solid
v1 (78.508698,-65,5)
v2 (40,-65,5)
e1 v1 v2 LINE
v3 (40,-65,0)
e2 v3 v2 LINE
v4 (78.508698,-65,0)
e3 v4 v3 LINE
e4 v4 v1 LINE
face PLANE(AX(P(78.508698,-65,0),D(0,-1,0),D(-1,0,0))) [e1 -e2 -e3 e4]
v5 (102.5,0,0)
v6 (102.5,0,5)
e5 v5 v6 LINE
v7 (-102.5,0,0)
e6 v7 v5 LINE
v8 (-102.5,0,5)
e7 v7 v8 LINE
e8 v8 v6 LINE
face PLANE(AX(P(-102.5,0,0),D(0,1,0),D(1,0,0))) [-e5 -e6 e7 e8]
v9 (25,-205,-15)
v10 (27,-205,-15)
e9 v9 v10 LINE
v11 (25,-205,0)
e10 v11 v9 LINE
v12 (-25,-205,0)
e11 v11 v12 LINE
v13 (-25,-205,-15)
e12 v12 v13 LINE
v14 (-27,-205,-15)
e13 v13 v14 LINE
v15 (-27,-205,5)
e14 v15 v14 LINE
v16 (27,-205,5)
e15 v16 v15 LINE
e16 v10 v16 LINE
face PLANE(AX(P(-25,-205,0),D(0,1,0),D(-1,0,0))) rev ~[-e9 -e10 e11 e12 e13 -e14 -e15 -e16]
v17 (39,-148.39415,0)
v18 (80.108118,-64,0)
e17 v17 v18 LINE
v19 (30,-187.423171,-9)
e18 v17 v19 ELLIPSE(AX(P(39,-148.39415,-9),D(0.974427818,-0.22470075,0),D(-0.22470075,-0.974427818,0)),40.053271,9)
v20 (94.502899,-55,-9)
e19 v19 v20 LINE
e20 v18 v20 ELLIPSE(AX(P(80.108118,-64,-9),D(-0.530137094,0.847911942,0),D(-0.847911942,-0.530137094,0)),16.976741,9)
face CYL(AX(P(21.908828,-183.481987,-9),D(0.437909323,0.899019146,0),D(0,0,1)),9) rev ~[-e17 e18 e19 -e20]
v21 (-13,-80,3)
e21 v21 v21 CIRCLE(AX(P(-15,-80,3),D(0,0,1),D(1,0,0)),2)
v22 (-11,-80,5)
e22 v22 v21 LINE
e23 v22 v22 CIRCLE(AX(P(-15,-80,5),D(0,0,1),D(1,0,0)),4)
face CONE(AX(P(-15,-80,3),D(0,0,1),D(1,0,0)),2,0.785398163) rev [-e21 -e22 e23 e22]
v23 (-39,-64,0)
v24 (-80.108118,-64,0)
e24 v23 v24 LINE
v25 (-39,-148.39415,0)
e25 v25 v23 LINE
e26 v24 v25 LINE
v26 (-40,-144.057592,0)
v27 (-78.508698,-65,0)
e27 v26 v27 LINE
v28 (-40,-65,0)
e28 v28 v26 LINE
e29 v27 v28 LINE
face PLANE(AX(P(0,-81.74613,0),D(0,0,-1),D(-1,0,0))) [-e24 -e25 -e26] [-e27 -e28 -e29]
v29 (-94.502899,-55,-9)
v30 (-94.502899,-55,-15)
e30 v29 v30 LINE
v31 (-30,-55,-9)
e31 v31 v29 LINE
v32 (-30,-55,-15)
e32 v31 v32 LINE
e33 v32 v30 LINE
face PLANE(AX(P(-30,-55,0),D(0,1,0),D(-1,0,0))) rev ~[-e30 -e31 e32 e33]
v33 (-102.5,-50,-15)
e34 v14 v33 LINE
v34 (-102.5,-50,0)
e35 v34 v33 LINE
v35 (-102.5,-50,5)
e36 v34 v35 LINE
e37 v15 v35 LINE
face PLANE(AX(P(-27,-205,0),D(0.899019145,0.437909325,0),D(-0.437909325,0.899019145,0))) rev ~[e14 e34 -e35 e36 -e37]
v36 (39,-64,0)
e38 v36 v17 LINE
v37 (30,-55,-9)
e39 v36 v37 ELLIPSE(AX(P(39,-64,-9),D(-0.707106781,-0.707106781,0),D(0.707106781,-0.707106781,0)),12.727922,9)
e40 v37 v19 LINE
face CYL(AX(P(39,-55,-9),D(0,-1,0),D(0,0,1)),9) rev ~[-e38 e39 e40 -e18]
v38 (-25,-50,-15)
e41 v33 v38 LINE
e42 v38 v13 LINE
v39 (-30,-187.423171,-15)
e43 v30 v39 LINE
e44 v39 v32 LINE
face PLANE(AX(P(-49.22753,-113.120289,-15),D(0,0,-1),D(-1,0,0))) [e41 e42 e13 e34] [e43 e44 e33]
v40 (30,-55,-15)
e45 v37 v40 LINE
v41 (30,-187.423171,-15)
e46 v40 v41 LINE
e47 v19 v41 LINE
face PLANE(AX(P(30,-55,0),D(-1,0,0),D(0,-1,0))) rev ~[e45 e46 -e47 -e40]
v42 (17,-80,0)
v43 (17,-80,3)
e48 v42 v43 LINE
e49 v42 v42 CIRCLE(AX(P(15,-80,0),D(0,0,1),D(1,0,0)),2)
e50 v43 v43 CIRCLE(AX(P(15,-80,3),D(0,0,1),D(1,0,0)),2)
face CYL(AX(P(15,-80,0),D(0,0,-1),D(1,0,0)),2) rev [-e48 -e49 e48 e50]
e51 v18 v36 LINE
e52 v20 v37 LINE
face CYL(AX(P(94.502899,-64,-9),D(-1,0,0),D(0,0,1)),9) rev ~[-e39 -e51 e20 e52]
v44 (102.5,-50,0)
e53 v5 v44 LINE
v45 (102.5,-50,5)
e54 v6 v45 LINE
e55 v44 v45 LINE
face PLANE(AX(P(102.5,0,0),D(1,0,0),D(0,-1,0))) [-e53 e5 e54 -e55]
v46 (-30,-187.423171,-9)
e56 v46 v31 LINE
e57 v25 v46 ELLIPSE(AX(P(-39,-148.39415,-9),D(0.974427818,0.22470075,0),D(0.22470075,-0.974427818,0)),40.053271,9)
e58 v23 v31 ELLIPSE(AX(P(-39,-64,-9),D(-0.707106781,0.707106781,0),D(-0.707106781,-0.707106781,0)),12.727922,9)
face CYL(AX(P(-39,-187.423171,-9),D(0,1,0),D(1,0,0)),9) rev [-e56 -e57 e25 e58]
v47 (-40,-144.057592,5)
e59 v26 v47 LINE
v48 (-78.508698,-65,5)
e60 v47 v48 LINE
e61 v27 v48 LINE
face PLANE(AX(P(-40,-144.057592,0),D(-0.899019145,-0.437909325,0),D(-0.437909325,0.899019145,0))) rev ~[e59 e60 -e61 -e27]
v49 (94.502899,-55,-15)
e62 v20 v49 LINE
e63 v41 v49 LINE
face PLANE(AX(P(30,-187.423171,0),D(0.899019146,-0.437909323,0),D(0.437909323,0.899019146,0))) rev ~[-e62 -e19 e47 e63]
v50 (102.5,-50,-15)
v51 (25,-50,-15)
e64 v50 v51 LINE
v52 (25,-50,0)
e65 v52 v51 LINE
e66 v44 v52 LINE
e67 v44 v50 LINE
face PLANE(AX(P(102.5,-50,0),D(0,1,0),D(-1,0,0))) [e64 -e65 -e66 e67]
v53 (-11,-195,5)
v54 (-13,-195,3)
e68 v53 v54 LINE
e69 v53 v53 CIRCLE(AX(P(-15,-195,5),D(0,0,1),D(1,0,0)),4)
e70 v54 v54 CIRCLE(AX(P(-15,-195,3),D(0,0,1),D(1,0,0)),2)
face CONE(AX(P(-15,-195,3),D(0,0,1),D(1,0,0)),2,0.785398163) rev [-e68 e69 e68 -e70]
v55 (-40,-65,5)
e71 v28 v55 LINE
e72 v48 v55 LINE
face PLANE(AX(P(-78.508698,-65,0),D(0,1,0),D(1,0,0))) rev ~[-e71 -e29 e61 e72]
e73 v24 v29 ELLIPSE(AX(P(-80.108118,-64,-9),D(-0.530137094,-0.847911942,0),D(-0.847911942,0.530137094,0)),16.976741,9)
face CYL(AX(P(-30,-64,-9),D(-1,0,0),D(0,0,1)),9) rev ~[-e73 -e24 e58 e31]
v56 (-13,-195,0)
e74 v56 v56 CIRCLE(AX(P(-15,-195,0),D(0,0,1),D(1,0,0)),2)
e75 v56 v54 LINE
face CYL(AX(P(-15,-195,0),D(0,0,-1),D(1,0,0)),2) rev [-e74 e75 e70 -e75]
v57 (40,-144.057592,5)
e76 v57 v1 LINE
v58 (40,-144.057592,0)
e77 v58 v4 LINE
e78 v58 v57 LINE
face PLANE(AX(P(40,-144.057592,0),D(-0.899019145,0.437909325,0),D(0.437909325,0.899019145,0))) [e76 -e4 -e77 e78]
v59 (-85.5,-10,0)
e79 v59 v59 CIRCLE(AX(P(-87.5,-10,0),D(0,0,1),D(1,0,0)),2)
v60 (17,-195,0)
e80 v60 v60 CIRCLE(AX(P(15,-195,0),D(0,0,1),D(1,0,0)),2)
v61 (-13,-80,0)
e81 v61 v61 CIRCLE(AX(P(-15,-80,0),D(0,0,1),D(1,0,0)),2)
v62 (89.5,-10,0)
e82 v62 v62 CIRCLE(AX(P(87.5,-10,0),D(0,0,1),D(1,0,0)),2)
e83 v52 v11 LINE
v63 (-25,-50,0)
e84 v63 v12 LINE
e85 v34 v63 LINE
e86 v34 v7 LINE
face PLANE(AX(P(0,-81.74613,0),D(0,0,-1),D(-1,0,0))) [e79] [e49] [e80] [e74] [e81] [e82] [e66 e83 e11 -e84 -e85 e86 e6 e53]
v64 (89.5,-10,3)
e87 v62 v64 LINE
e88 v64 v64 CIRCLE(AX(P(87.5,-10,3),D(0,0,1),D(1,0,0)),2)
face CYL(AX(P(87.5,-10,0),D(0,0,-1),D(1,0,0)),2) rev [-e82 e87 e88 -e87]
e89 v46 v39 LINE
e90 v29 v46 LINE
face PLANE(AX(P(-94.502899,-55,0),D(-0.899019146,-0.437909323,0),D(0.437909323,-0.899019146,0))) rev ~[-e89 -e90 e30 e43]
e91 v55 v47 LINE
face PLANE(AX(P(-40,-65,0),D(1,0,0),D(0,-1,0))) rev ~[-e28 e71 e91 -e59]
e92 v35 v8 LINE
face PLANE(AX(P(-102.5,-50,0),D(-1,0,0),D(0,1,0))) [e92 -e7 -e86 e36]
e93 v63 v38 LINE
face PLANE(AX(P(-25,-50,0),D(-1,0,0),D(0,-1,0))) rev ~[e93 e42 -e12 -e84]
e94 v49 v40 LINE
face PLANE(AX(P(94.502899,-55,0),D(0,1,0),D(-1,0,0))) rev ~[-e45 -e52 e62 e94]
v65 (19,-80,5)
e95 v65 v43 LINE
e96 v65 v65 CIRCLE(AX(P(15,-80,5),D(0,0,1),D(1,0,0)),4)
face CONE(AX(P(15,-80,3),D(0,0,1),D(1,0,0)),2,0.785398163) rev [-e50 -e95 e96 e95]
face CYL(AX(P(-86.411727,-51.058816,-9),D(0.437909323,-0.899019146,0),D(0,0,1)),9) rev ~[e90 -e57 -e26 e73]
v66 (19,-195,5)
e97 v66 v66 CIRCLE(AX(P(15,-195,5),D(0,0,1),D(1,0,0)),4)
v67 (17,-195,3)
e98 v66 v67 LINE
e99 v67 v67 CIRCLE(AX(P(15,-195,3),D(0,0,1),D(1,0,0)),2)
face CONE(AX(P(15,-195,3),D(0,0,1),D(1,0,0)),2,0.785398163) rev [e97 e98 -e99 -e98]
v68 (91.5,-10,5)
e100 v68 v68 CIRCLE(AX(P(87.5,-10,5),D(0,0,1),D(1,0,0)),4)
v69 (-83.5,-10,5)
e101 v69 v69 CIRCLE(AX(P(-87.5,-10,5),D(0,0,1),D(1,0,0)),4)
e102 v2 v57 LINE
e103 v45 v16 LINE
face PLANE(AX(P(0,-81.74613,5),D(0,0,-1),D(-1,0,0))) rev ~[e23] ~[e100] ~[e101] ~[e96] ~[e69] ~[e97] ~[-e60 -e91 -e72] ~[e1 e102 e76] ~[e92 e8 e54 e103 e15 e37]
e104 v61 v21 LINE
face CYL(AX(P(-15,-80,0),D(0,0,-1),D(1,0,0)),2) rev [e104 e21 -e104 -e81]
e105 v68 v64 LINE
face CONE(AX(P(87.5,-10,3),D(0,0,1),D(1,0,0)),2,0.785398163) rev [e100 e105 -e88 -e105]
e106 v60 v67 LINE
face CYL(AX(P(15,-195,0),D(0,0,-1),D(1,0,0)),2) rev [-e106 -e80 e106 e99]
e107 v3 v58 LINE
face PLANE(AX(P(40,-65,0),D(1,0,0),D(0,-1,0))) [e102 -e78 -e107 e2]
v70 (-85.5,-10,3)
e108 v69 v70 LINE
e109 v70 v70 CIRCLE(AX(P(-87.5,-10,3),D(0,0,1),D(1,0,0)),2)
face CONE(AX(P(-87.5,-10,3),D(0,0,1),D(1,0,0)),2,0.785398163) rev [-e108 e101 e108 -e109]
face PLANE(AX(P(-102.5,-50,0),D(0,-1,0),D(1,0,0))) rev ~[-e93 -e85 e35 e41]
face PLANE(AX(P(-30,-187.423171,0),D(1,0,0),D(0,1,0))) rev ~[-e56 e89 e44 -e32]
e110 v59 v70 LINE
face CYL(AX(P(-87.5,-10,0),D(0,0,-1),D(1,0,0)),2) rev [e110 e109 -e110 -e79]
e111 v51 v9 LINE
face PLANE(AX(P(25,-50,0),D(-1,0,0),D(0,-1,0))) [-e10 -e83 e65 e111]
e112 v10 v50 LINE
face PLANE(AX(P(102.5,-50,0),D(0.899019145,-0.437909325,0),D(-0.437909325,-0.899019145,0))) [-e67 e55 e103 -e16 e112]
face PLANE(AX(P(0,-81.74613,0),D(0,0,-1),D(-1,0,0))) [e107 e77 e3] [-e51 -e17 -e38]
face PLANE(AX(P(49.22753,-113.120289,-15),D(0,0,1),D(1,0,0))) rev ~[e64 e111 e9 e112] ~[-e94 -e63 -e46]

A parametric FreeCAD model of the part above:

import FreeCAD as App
import Part
import Sketcher


def edges_at(feature, points):
    """Names of the edges that pass closest to the given points."""
    edges = feature.Shape.Edges
    near = lambda p: min(range(len(edges)), key=lambda i: edges[i].distToShape(Part.Vertex(*p))[0])
    return sorted({f"Edge{near(p) + 1}" for p in points})

doc = App.newDocument("Part")
body = doc.addObject("PartDesign::Body", "Body")

sketch1 = doc.addObject("Sketcher::SketchObject", "Sketch")
body.addObject(sketch1)
sketch1.AttachmentSupport = (doc.XY_Plane, [""])
sketch1.MapMode = "FlatFace"
sketch1.addGeometry(Part.LineSegment(App.Vector(102.5, 0, 0), App.Vector(-102.5, 0, 0)), False)
sketch1.addGeometry(Part.LineSegment(App.Vector(-102.5, 0, 0), App.Vector(-102.5, -50, 0)), False)
sketch1.addGeometry(Part.LineSegment(App.Vector(-102.5, -50, 0), App.Vector(-27, -205, 0)), False)
sketch1.addGeometry(Part.LineSegment(App.Vector(-27, -205, 0), App.Vector(27, -205, 0)), False)
sketch1.addGeometry(Part.LineSegment(App.Vector(27, -205, 0), App.Vector(102.5, -50, 0)), False)
sketch1.addGeometry(Part.LineSegment(App.Vector(102.5, -50, 0), App.Vector(102.5, 0, 0)), False)
sketch1.addGeometry(Part.Circle(App.Vector(15, -195, 0), App.Vector(0, 0, 1), 2), False)
sketch1.addGeometry(Part.LineSegment(App.Vector(78.508698, -65, 0), App.Vector(40, -144.057592, 0)), False)
sketch1.addGeometry(Part.LineSegment(App.Vector(40, -144.057592, 0), App.Vector(40, -65, 0)), False)
sketch1.addGeometry(Part.LineSegment(App.Vector(40, -65, 0), App.Vector(78.508698, -65, 0)), False)
sketch1.addGeometry(Part.Circle(App.Vector(-15, -195, 0), App.Vector(0, 0, 1), 2), False)
sketch1.addGeometry(Part.LineSegment(App.Vector(-78.508698, -65, 0), App.Vector(-40, -65, 0)), False)
sketch1.addGeometry(Part.LineSegment(App.Vector(-40, -65, 0), App.Vector(-40, -144.057592, 0)), False)
sketch1.addGeometry(Part.LineSegment(App.Vector(-40, -144.057592, 0), App.Vector(-78.508698, -65, 0)), False)
sketch1.addGeometry(Part.Circle(App.Vector(15, -80, 0), App.Vector(0, 0, 1), 2), False)
sketch1.addGeometry(Part.Circle(App.Vector(87.5, -10, 0), App.Vector(0, 0, 1), 2), False)
sketch1.addGeometry(Part.Circle(App.Vector(-15, -80, 0), App.Vector(0, 0, 1), 2), False)
sketch1.addGeometry(Part.Circle(App.Vector(-87.5, -10, 0), App.Vector(0, 0, 1), 2), False)
sketch1.addConstraint(Sketcher.Constraint("Coincident", 0, 2, 1, 1))
sketch1.addConstraint(Sketcher.Constraint("Coincident", 1, 2, 2, 1))
sketch1.addConstraint(Sketcher.Constraint("Coincident", 2, 2, 3, 1))
sketch1.addConstraint(Sketcher.Constraint("Coincident", 3, 2, 4, 1))
sketch1.addConstraint(Sketcher.Constraint("Coincident", 4, 2, 5, 1))
sketch1.addConstraint(Sketcher.Constraint("Coincident", 5, 2, 0, 1))
sketch1.addConstraint(Sketcher.Constraint("Coincident", 7, 2, 8, 1))
sketch1.addConstraint(Sketcher.Constraint("Coincident", 8, 2, 9, 1))
sketch1.addConstraint(Sketcher.Constraint("Coincident", 9, 2, 7, 1))
sketch1.addConstraint(Sketcher.Constraint("Coincident", 11, 2, 12, 1))
sketch1.addConstraint(Sketcher.Constraint("Coincident", 12, 2, 13, 1))
sketch1.addConstraint(Sketcher.Constraint("Coincident", 13, 2, 11, 1))
sketch1.addConstraint(Sketcher.Constraint("Horizontal", 0))
sketch1.addConstraint(Sketcher.Constraint("Vertical", 1))
sketch1.addConstraint(Sketcher.Constraint("Horizontal", 3))
sketch1.addConstraint(Sketcher.Constraint("Vertical", 5))
sketch1.addConstraint(Sketcher.Constraint("Vertical", 8))
sketch1.addConstraint(Sketcher.Constraint("Horizontal", 9))
sketch1.addConstraint(Sketcher.Constraint("Horizontal", 11))
sketch1.addConstraint(Sketcher.Constraint("Vertical", 12))
sketch1.addConstraint(Sketcher.Constraint("Equal", 6, 10))
sketch1.addConstraint(Sketcher.Constraint("Equal", 10, 14))
sketch1.addConstraint(Sketcher.Constraint("Equal", 14, 15))
sketch1.addConstraint(Sketcher.Constraint("Equal", 15, 16))
sketch1.addConstraint(Sketcher.Constraint("Equal", 16, 17))
sketch1.addConstraint(Sketcher.Constraint("Symmetric", 0, 2, 5, 2, -1, 1))
sketch1.addConstraint(Sketcher.Constraint("Symmetric", 6, 3, 10, 3, -2))
sketch1.addConstraint(Sketcher.Constraint("Symmetric", 14, 3, 16, 3, -2))
sketch1.addConstraint(Sketcher.Constraint("Symmetric", 15, 3, 17, 3, -2))
sketch1.addConstraint(Sketcher.Constraint("Symmetric", 8, 2, 11, 2, -2))
sketch1.addConstraint(Sketcher.Constraint("Parallel", 4, 7))
sketch1.addConstraint(Sketcher.Constraint("Parallel", 2, 13))
sketch1.addConstraint(Sketcher.Constraint("Horizontal", 1, 2, 4, 2))
sketch1.addConstraint(Sketcher.Constraint("Horizontal", 7, 2, 12, 2))
sketch1.addConstraint(Sketcher.Constraint("Vertical", 6, 3, 14, 3))
sketch1.addConstraint(Sketcher.Constraint("Equal", 9, 11))
sketch1.addConstraint(Sketcher.Constraint("Diameter", 6, 4.0))
sketch1.addConstraint(Sketcher.Constraint("DistanceX", 0, 2, 0, 1, 205.0))
sketch1.addConstraint(Sketcher.Constraint("DistanceX", 3, 1, 3, 2, 54.0))
sketch1.addConstraint(Sketcher.Constraint("DistanceY", 1, 2, 1, 1, 50.0))
sketch1.addConstraint(Sketcher.Constraint("DistanceX", -1, 1, 6, 3, 15.0))
sketch1.addConstraint(Sketcher.Constraint("DistanceY", 6, 3, -1, 1, 195.0))
sketch1.addConstraint(Sketcher.Constraint("DistanceY", 14, 3, -1, 1, 80.0))
sketch1.addConstraint(Sketcher.Constraint("DistanceY", 15, 3, -1, 1, 10.0))
sketch1.addConstraint(Sketcher.Constraint("DistanceY", 2, 2, -1, 1, 205.0))
sketch1.addConstraint(Sketcher.Constraint("DistanceX", -1, 1, 7, 2, 40.0))
sketch1.addConstraint(Sketcher.Constraint("DistanceY", 8, 2, -1, 1, 65.0))
sketch1.addConstraint(Sketcher.Constraint("DistanceX", 17, 3, 15, 3, 175.0))
sketch1.addConstraint(Sketcher.Constraint("DistanceY", 8, 1, 8, 2, 79.057592))
pad1 = doc.addObject("PartDesign::Pad", "Pad")
body.addObject(pad1)
pad1.Profile = sketch1
pad1.Length = 5

sketch2 = doc.addObject("Sketcher::SketchObject", "Sketch001")
body.addObject(sketch2)
sketch2.AttachmentSupport = (doc.XY_Plane, [""])
sketch2.MapMode = "FlatFace"
sketch2.addGeometry(Part.LineSegment(App.Vector(-25, -205, 0), App.Vector(-25, -50, 0)), False)
sketch2.addGeometry(Part.LineSegment(App.Vector(-25, -50, 0), App.Vector(-102.5, -50, 0)), False)
sketch2.addGeometry(Part.LineSegment(App.Vector(-102.5, -50, 0), App.Vector(-27, -205, 0)), False)
sketch2.addGeometry(Part.LineSegment(App.Vector(-27, -205, 0), App.Vector(-25, -205, 0)), False)
sketch2.addGeometry(Part.LineSegment(App.Vector(-30, -187.423171, 0), App.Vector(-94.502899, -55, 0)), False)
sketch2.addGeometry(Part.LineSegment(App.Vector(-94.502899, -55, 0), App.Vector(-30, -55, 0)), False)
sketch2.addGeometry(Part.LineSegment(App.Vector(-30, -55, 0), App.Vector(-30, -187.423171, 0)), False)
sketch2.addGeometry(Part.LineSegment(App.Vector(25, -50, 0), App.Vector(25, -205, 0)), False)
sketch2.addGeometry(Part.LineSegment(App.Vector(25, -205, 0), App.Vector(27, -205, 0)), False)
sketch2.addGeometry(Part.LineSegment(App.Vector(27, -205, 0), App.Vector(102.5, -50, 0)), False)
sketch2.addGeometry(Part.LineSegment(App.Vector(102.5, -50, 0), App.Vector(25, -50, 0)), False)
sketch2.addGeometry(Part.LineSegment(App.Vector(30, -55, 0), App.Vector(94.502899, -55, 0)), False)
sketch2.addGeometry(Part.LineSegment(App.Vector(94.502899, -55, 0), App.Vector(30, -187.423171, 0)), False)
sketch2.addGeometry(Part.LineSegment(App.Vector(30, -187.423171, 0), App.Vector(30, -55, 0)), False)
sketch2.addConstraint(Sketcher.Constraint("Coincident", 0, 2, 1, 1))
sketch2.addConstraint(Sketcher.Constraint("Coincident", 1, 2, 2, 1))
sketch2.addConstraint(Sketcher.Constraint("Coincident", 2, 2, 3, 1))
sketch2.addConstraint(Sketcher.Constraint("Coincident", 3, 2, 0, 1))
sketch2.addConstraint(Sketcher.Constraint("Coincident", 4, 2, 5, 1))
sketch2.addConstraint(Sketcher.Constraint("Coincident", 5, 2, 6, 1))
sketch2.addConstraint(Sketcher.Constraint("Coincident", 6, 2, 4, 1))
sketch2.addConstraint(Sketcher.Constraint("Coincident", 7, 2, 8, 1))
sketch2.addConstraint(Sketcher.Constraint("Coincident", 8, 2, 9, 1))
sketch2.addConstraint(Sketcher.Constraint("Coincident", 9, 2, 10, 1))
sketch2.addConstraint(Sketcher.Constraint("Coincident", 10, 2, 7, 1))
sketch2.addConstraint(Sketcher.Constraint("Coincident", 11, 2, 12, 1))
sketch2.addConstraint(Sketcher.Constraint("Coincident", 12, 2, 13, 1))
sketch2.addConstraint(Sketcher.Constraint("Coincident", 13, 2, 11, 1))
sketch2.addConstraint(Sketcher.Constraint("Vertical", 0))
sketch2.addConstraint(Sketcher.Constraint("Horizontal", 1))
sketch2.addConstraint(Sketcher.Constraint("Horizontal", 3))
sketch2.addConstraint(Sketcher.Constraint("Horizontal", 5))
sketch2.addConstraint(Sketcher.Constraint("Vertical", 6))
sketch2.addConstraint(Sketcher.Constraint("Vertical", 7))
sketch2.addConstraint(Sketcher.Constraint("Horizontal", 8))
sketch2.addConstraint(Sketcher.Constraint("Horizontal", 10))
sketch2.addConstraint(Sketcher.Constraint("Horizontal", 11))
sketch2.addConstraint(Sketcher.Constraint("Vertical", 13))
sketch2.addConstraint(Sketcher.Constraint("Symmetric", 3, 2, 7, 2, -2))
sketch2.addConstraint(Sketcher.Constraint("Symmetric", 1, 2, 9, 2, -2))
sketch2.addConstraint(Sketcher.Constraint("Symmetric", 4, 2, 11, 2, -2))
sketch2.addConstraint(Sketcher.Constraint("Symmetric", 6, 2, 12, 2, -2))
sketch2.addConstraint(Sketcher.Constraint("Parallel", 2, 4))
sketch2.addConstraint(Sketcher.Constraint("Parallel", 9, 12))
sketch2.addConstraint(Sketcher.Constraint("DistanceX", 3, 1, 3, 2, 2.0))
sketch2.addConstraint(Sketcher.Constraint("DistanceY", 0, 1, 0, 2, 155.0))
sketch2.addConstraint(Sketcher.Constraint("DistanceX", 1, 2, 1, 1, 77.5))
sketch2.addConstraint(Sketcher.Constraint("DistanceX", 0, 2, -1, 1, 25.0))
sketch2.addConstraint(Sketcher.Constraint("DistanceY", 0, 2, -1, 1, 50.0))
sketch2.addConstraint(Sketcher.Constraint("DistanceY", 4, 2, -1, 1, 55.0))
sketch2.addConstraint(Sketcher.Constraint("DistanceX", 5, 2, -1, 1, 30.0))
sketch2.addConstraint(Sketcher.Constraint("DistanceX", 5, 1, 5, 2, 64.502899))
pad2 = doc.addObject("PartDesign::Pad", "Pad001")
body.addObject(pad2)
pad2.Profile = sketch2
pad2.Length = 15
pad2.Reversed = True
doc.recompute()

fillet = doc.addObject("PartDesign::Fillet", "Fillet")
body.addObject(fillet)
fillet.Base = (pad2, edges_at(pad2, [
    (30, -121.212, 0),
    (-62.251, -55, 0),
    (-62.251, -121.212, 0),
    (62.251, -55, 0),
    (62.251, -121.212, 0),
    (-30, -121.212, 0),
]))
fillet.Radius = 9
doc.recompute()

chamfer = doc.addObject("PartDesign::Chamfer", "Chamfer")
body.addObject(chamfer)
chamfer.Base = (fillet, edges_at(fillet, [
    (-89.5, -10, 5),
    (85.5, -10, 5),
    (-17, -80, 5),
    (13, -80, 5),
    (-17, -195, 5),
    (13, -195, 5),
]))
chamfer.Size = 2

doc.recompute()
